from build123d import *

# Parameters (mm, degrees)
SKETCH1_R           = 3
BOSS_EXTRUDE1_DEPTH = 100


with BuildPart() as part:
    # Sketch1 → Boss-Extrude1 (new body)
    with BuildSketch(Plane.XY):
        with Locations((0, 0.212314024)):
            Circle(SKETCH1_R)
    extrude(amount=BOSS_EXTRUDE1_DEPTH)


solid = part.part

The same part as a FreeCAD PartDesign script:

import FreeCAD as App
import Part
import Sketcher

doc = App.newDocument("Part")
params = doc.addObject("Spreadsheet::Sheet", "Params")
for row, (alias, value) in enumerate([
    ("sketch1_diameter", "6 mm"),
    ("pad1_length", "100 mm"),
], start=1):
    params.set(f"A{row}", alias)
    params.set(f"B{row}", "=" + value)
    params.setAlias(f"B{row}", alias)

body = doc.addObject("PartDesign::Body", "Body")

# Sketch on XY plane
sketch1 = body.newObject("Sketcher::SketchObject", "Sketch")
sketch1.AttachmentSupport = (doc.getObject("XY_Plane"), [""])
sketch1.MapMode = "FlatFace"
sketch1.addGeometry(Part.Circle(App.Vector(0, 0.212314, 0), App.Vector(0, 0, 1), 3), False)
sketch1.addConstraint(Sketcher.Constraint("PointOnObject", 0, 3, -2))
sketch1.addConstraint(Sketcher.Constraint("Diameter", 0, 6.0))
sketch1.addConstraint(Sketcher.Constraint("DistanceY", -1, 1, 0, 3, 0.212314))
sketch1.setExpression("Constraints[1]", "Params.sketch1_diameter")
pad1 = body.newObject("PartDesign::Pad", "Pad")
pad1.Profile = sketch1
pad1.setExpression("Length", "Params.pad1_length")

doc.recompute()
